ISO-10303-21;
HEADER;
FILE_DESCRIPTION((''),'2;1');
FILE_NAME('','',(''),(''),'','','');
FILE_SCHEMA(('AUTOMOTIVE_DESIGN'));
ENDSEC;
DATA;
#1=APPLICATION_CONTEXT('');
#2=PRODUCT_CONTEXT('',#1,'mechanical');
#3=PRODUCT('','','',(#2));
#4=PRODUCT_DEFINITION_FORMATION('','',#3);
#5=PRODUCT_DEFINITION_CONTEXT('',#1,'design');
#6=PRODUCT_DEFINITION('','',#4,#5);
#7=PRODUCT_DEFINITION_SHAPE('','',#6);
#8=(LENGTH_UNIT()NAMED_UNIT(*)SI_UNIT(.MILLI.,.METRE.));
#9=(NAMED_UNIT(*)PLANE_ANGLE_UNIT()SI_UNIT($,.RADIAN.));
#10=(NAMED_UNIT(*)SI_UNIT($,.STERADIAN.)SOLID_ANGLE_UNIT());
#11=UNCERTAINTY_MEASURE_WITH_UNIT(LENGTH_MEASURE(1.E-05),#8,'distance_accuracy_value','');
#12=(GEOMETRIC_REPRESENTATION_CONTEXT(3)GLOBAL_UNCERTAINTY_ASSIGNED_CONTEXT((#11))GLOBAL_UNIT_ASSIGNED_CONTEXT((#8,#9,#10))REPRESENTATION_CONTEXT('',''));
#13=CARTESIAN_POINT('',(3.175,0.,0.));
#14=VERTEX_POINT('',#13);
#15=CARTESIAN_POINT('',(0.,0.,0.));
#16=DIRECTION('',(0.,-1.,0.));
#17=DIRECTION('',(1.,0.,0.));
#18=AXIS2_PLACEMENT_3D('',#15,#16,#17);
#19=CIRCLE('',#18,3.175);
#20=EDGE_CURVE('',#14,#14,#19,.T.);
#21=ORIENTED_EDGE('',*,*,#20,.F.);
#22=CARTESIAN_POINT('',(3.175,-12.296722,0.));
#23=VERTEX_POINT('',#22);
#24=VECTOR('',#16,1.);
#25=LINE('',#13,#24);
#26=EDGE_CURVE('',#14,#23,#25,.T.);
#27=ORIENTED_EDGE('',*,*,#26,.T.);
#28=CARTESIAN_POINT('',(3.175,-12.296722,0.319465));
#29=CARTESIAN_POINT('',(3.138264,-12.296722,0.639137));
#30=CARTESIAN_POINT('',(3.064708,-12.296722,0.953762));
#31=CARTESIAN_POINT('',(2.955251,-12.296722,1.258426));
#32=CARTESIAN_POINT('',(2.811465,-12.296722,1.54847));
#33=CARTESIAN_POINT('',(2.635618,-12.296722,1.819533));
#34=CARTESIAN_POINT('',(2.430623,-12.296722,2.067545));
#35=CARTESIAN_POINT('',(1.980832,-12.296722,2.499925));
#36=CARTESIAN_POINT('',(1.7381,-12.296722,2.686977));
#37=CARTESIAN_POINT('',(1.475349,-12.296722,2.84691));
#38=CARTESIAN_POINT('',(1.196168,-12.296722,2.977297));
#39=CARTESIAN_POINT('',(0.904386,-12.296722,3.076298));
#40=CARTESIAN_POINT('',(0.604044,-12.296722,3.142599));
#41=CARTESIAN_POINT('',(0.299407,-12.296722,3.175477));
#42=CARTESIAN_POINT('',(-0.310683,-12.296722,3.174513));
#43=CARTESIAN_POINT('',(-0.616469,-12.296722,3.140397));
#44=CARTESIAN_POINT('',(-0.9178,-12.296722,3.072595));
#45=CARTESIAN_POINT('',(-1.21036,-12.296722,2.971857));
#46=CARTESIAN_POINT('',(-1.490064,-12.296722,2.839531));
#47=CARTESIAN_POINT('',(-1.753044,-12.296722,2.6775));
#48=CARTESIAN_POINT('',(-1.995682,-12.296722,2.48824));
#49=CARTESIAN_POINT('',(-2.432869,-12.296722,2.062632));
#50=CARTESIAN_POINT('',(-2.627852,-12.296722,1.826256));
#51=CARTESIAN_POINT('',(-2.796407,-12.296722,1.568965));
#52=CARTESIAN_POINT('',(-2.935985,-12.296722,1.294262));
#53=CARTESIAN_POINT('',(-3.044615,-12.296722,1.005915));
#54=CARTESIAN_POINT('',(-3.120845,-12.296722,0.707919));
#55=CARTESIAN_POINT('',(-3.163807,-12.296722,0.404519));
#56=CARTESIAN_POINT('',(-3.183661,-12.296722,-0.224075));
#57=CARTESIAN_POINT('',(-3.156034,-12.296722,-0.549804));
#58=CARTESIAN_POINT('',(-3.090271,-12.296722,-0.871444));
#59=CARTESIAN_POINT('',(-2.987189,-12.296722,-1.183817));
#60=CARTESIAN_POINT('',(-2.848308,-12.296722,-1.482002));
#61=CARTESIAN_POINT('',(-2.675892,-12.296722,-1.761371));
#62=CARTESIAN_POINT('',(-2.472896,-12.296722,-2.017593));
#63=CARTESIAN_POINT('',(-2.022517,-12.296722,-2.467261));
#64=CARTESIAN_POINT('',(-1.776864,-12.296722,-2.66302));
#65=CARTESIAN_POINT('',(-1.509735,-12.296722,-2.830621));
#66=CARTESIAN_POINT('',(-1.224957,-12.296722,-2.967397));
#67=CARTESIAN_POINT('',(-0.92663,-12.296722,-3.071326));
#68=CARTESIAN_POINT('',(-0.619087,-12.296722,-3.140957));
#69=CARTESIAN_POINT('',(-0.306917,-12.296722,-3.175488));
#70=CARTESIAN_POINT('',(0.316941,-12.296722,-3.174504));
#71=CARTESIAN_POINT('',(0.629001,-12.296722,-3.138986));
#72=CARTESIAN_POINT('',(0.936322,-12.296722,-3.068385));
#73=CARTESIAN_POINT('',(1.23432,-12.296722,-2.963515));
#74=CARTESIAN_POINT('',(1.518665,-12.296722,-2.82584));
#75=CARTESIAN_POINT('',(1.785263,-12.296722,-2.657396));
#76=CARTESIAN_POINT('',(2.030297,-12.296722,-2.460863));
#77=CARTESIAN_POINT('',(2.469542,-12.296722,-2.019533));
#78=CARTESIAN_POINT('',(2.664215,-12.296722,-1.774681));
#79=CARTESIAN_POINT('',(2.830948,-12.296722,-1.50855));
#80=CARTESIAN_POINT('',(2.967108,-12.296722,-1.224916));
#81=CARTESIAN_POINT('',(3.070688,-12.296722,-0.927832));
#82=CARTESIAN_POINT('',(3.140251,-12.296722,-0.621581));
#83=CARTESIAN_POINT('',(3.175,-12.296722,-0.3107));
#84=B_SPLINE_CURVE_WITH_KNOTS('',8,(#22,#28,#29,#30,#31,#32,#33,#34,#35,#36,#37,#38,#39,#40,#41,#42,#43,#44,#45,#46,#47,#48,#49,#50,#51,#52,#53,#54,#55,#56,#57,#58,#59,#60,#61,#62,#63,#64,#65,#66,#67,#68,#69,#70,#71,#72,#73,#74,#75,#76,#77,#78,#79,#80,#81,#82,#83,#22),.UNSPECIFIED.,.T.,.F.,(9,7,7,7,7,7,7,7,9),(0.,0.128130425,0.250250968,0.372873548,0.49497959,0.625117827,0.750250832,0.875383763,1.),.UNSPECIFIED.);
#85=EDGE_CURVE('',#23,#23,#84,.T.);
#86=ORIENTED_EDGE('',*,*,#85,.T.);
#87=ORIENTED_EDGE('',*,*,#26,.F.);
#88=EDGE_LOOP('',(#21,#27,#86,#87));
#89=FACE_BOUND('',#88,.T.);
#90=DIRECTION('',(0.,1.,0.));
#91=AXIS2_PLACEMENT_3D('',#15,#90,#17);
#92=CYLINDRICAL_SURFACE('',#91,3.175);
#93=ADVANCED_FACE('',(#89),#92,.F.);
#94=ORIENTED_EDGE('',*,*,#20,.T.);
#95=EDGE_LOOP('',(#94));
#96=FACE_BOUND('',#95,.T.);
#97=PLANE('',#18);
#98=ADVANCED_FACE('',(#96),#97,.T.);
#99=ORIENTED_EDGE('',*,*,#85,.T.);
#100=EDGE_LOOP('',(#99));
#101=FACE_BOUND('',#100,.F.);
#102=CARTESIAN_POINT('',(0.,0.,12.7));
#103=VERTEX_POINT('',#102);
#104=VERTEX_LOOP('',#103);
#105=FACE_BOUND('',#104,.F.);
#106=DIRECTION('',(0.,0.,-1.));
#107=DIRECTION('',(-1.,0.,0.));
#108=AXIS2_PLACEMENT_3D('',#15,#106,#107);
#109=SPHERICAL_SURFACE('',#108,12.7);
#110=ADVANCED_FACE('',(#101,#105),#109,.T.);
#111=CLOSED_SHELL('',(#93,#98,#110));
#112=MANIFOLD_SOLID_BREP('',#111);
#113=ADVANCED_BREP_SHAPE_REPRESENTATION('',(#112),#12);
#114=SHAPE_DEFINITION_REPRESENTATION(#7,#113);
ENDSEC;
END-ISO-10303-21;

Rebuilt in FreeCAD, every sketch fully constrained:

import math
import FreeCAD as App
import Part
import Sketcher
from FreeCAD import Vector
Q = App.Units.Quantity

doc = App.newDocument("Part")
body = doc.addObject("PartDesign::Body", "Body")

sketch1 = body.newObject("Sketcher::SketchObject", "Sketch")
sketch1.AttachmentSupport = (doc.getObject("XZ_Plane"), [""])
sketch1.MapMode = "FlatFace"
sketch1.addGeometry(Part.LineSegment(Vector(0, -13, 0), Vector(0, 13, 0)), False)
sketch1.addGeometry(Part.ArcOfCircle(Part.Circle(Vector(0, 0, 0), Vector(0, 0, 1), 13), math.radians(90), math.radians(270)), False)
sketch1.addConstraint(Sketcher.Constraint("Coincident", 0, 1, 1, 2))
sketch1.addConstraint(Sketcher.Constraint("Coincident", 1, 1, 0, 2))
sketch1.addConstraint(Sketcher.Constraint("Vertical", 0))
sketch1.addConstraint(Sketcher.Constraint("Coincident", 1, 3, -1, 1))
sketch1.addConstraint(Sketcher.Constraint("PointOnObject", 0, 1, -2))
sketch1.addConstraint(Sketcher.Constraint("Radius", 1, Q("0.5 in")))
revolution = body.newObject("PartDesign::Revolution", "Revolution")
revolution.Profile = sketch1
revolution.ReferenceAxis = (sketch1, ["V_Axis"])
revolution.Angle = 360

sketch2 = body.newObject("Sketcher::SketchObject", "Sketch001")
sketch2.AttachmentSupport = (doc.getObject("XZ_Plane"), [""])
sketch2.MapMode = "FlatFace"
sketch2.addGeometry(Part.Circle(Vector(0, 0, 0), Vector(0, 0, 1), 3.2), False)
sketch2.addConstraint(Sketcher.Constraint("Coincident", 0, 3, -1, 1))
sketch2.addConstraint(Sketcher.Constraint("Diameter", 0, Q("0.25 in")))
pocket1 = body.newObject("PartDesign::Pocket", "Pocket")
pocket1.Profile = sketch2
pocket1.Length = Q("2.08 in")
pocket1.Reversed = True

doc.recompute()
